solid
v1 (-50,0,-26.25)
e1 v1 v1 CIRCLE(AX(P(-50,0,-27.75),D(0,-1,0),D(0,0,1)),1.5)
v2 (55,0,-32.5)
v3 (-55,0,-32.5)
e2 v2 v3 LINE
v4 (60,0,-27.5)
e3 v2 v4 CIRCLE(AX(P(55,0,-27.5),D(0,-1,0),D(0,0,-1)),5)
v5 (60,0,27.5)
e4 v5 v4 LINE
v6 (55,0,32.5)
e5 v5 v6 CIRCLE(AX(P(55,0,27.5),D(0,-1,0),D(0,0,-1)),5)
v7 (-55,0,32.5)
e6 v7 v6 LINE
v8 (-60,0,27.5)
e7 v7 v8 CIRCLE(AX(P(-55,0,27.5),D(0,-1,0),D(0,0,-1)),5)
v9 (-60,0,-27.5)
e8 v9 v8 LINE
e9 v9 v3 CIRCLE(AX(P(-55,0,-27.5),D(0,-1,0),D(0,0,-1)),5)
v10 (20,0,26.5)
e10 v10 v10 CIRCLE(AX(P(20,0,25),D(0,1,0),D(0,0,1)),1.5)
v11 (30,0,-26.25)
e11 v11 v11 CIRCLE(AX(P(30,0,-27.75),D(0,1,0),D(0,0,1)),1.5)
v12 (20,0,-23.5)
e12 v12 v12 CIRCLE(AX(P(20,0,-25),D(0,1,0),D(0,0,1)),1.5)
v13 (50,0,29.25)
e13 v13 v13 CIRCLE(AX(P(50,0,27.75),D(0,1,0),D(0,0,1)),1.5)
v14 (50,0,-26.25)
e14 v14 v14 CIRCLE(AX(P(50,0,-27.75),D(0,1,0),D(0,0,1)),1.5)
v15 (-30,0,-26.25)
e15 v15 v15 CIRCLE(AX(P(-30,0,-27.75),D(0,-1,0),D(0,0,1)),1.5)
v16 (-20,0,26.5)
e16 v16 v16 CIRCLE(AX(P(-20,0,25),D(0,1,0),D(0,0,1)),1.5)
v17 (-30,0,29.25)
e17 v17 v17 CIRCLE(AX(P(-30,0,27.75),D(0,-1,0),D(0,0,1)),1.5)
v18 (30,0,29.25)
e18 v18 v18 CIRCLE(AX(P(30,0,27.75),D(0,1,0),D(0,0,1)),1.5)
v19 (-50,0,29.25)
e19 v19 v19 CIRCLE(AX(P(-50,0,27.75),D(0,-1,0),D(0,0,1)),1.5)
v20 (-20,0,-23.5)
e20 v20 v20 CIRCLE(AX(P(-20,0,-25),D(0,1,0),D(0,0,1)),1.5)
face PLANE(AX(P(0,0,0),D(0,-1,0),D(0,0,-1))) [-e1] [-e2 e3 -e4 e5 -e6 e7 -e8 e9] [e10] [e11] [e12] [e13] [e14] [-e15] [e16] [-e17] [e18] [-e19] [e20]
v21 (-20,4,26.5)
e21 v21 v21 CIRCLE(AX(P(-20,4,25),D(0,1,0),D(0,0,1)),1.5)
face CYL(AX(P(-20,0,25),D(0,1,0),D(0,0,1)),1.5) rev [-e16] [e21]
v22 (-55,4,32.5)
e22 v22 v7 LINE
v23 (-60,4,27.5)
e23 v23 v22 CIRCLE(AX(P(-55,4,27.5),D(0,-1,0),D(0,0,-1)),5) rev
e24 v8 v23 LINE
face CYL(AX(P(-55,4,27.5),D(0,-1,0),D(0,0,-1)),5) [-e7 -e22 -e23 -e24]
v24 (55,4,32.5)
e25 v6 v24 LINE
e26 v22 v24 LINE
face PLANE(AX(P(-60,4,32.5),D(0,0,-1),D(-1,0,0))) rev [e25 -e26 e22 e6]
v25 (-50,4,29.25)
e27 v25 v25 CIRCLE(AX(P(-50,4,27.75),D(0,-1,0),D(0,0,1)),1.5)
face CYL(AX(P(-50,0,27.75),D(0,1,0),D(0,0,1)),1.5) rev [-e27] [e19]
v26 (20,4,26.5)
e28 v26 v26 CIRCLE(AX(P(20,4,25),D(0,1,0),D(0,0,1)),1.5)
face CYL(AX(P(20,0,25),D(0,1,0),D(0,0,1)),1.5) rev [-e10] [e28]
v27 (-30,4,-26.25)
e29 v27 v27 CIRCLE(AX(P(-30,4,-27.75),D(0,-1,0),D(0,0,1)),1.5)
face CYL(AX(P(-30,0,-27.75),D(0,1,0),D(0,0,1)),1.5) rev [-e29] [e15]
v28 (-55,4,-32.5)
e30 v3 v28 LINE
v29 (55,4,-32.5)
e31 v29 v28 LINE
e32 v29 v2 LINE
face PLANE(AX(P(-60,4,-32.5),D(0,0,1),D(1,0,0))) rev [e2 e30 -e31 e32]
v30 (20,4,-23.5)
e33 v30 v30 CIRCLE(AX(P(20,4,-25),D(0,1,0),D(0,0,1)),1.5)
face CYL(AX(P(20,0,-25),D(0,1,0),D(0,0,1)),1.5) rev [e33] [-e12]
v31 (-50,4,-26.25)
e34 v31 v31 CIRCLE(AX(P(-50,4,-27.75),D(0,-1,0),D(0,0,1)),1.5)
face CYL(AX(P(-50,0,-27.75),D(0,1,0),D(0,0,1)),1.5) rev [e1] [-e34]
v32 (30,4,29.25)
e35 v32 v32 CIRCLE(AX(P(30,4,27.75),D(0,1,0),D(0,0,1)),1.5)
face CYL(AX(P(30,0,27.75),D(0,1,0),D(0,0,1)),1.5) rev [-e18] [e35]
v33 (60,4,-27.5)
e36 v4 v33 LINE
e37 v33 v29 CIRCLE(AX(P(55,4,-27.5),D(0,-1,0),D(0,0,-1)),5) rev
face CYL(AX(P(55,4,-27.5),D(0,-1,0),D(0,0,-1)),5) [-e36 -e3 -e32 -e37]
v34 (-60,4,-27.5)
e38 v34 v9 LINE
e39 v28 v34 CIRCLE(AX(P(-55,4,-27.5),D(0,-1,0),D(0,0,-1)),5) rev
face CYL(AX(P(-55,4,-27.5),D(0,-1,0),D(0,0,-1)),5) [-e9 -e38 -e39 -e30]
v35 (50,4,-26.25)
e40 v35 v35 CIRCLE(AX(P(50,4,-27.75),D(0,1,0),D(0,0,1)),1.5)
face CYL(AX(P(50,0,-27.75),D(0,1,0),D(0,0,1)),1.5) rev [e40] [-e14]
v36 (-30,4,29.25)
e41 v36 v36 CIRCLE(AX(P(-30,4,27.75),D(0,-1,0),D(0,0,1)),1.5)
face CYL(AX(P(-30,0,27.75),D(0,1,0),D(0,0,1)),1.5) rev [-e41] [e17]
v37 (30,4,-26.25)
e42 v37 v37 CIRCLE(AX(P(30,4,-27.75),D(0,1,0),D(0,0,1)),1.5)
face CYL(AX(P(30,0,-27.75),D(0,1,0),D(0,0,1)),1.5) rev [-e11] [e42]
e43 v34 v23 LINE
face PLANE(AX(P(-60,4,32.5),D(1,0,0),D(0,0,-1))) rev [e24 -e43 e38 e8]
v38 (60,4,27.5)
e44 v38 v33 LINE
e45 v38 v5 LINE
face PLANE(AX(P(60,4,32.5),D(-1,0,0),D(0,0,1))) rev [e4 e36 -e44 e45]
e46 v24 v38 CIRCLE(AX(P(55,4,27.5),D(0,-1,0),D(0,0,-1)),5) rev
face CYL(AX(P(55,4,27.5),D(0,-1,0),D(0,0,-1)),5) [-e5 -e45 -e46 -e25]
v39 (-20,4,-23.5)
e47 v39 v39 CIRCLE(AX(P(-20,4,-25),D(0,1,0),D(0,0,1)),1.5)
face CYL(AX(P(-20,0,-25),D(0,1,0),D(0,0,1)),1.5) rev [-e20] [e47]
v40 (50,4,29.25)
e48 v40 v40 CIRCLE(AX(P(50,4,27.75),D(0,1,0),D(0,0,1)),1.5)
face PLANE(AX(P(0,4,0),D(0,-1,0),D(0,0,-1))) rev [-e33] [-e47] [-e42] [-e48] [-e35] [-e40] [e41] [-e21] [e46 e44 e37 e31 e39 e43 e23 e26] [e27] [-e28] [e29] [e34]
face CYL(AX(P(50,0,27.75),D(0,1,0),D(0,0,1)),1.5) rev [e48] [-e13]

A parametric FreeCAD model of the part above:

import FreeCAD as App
import Part
import Sketcher
from FreeCAD import Vector
Q = App.Units.Quantity


def edges_at(feature, points):
    """Names of the edges that pass closest to the given points."""
    edges = feature.Shape.Edges
    near = lambda p: min(range(len(edges)), key=lambda i: edges[i].distToShape(Part.Vertex(*p))[0])
    return sorted({f"Edge{near(p) + 1}" for p in points})

doc = App.newDocument("Part")
body = doc.addObject("PartDesign::Body", "Body")

# Sketch on XZ plane
sketch1 = body.newObject("Sketcher::SketchObject", "Sketch")
sketch1.AttachmentSupport = (doc.getObject("XZ_Plane"), [""])
sketch1.MapMode = "FlatFace"
sketch1.addGeometry([
    Part.LineSegment(Vector(-60, -32, 0), Vector(-60, 32, 0)),
    Part.LineSegment(Vector(-60, 32, 0), Vector(60, 32, 0)),
    Part.LineSegment(Vector(60, 32, 0), Vector(60, -32, 0)),
    Part.LineSegment(Vector(60, -32, 0), Vector(-60, -32, 0)),
], False)
sketch1.addConstraint([
    Sketcher.Constraint("Coincident", 0, 2, 1, 1),
    Sketcher.Constraint("Coincident", 1, 2, 2, 1),
    Sketcher.Constraint("Coincident", 2, 2, 3, 1),
    Sketcher.Constraint("Coincident", 3, 2, 0, 1),
    Sketcher.Constraint("Vertical", 0),
    Sketcher.Constraint("Horizontal", 1),
    Sketcher.Constraint("Vertical", 2),
    Sketcher.Constraint("Horizontal", 3),
    Sketcher.Constraint("Symmetric", 0, 2, 2, 2, -1, 1),
    Sketcher.Constraint("DistanceX", 1, 1, 1, 2, Q("120 mm")),
    Sketcher.Constraint("DistanceY", 0, 1, 0, 2, Q("65 mm")),
])
pad1 = body.newObject("PartDesign::Pad", "Pad")
pad1.Profile = sketch1
pad1.Length = 4
pad1.Reversed = True

# Sketch on XZ plane
sketch2 = body.newObject("Sketcher::SketchObject", "Sketch001")
sketch2.AttachmentSupport = (doc.getObject("XZ_Plane"), [""])
sketch2.MapMode = "FlatFace"
sketch2.AttachmentOffset = App.Placement(Vector(0, 0, -4), App.Rotation())
sketch2.addGeometry([
    Part.Circle(Vector(50, 27.8, 0), Vector(0, 0, 1), 1.5),
    Part.Circle(Vector(50, -27.8, 0), Vector(0, 0, 1), 1.5),
    Part.Circle(Vector(30, -27.8, 0), Vector(0, 0, 1), 1.5),
    Part.Circle(Vector(30, 27.8, 0), Vector(0, 0, 1), 1.5),
], False)
sketch2.addConstraint([
    Sketcher.Constraint("Equal", 0, 1),
    Sketcher.Constraint("Equal", 1, 2),
    Sketcher.Constraint("Equal", 2, 3),
    Sketcher.Constraint("Symmetric", 0, 3, 1, 3, -1),
    Sketcher.Constraint("Symmetric", 2, 3, 3, 3, -1),
    Sketcher.Constraint("Horizontal", 1, 3, 2, 3),
    Sketcher.Constraint("Diameter", 0, Q("3 mm")),
    Sketcher.Constraint("DistanceX", -1, 1, 0, 3, Q("50 mm")),
    Sketcher.Constraint("DistanceX", -1, 1, 2, 3, Q("30 mm")),
    Sketcher.Constraint("DistanceY", 1, 3, 0, 3, Q("55.5 mm")),
])
pocket1 = body.newObject("PartDesign::Pocket", "Pocket")
pocket1.Profile = sketch2
pocket1.Length = 4
pocket1.Reversed = True
doc.recompute()

mirrored = body.newObject("PartDesign::Mirrored", "Mirrored")
mirrored.Originals = [pocket1]
mirrored.MirrorPlane = (doc.getObject("YZ_Plane"), [""])
body.Tip = mirrored
doc.recompute()

fillet = body.newObject("PartDesign::Fillet", "Fillet")
fillet.Base = (mirrored, edges_at(mirrored, [
    (60, 2, 32.5),
    (-60, 2, 32.5),
    (-60, 2, -32.5),
    (60, 2, -32.5),
]))
fillet.Radius = 5

# Sketch on XZ plane
sketch3 = body.newObject("Sketcher::SketchObject", "Sketch002")
sketch3.AttachmentSupport = (doc.getObject("XZ_Plane"), [""])
sketch3.MapMode = "FlatFace"
sketch3.AttachmentOffset = App.Placement(Vector(0, 0, -4), App.Rotation())
sketch3.addGeometry([
    Part.Circle(Vector(-20, -25, 0), Vector(0, 0, 1), 1.5),
    Part.Circle(Vector(20, -25, 0), Vector(0, 0, 1), 1.5),
    Part.Circle(Vector(20, 25, 0), Vector(0, 0, 1), 1.5),
    Part.Circle(Vector(-20, 25, 0), Vector(0, 0, 1), 1.5),
], False)
sketch3.addConstraint([
    Sketcher.Constraint("Equal", 0, 1),
    Sketcher.Constraint("Equal", 1, 2),
    Sketcher.Constraint("Equal", 2, 3),
    Sketcher.Constraint("Symmetric", 0, 3, 2, 3, -1, 1),
    Sketcher.Constraint("Symmetric", 1, 3, 3, 3, -1, 1),
    Sketcher.Constraint("Symmetric", 0, 3, 1, 3, -2),
    Sketcher.Constraint("Diameter", 0, Q("3 mm")),
    Sketcher.Constraint("DistanceX", 0, 3, -1, 1, Q("20 mm")),
    Sketcher.Constraint("DistanceY", 0, 3, -1, 1, Q("25 mm")),
])
pocket2 = body.newObject("PartDesign::Pocket", "Pocket001")
pocket2.Profile = sketch3
pocket2.Length = 4
pocket2.Reversed = True

doc.recompute()
